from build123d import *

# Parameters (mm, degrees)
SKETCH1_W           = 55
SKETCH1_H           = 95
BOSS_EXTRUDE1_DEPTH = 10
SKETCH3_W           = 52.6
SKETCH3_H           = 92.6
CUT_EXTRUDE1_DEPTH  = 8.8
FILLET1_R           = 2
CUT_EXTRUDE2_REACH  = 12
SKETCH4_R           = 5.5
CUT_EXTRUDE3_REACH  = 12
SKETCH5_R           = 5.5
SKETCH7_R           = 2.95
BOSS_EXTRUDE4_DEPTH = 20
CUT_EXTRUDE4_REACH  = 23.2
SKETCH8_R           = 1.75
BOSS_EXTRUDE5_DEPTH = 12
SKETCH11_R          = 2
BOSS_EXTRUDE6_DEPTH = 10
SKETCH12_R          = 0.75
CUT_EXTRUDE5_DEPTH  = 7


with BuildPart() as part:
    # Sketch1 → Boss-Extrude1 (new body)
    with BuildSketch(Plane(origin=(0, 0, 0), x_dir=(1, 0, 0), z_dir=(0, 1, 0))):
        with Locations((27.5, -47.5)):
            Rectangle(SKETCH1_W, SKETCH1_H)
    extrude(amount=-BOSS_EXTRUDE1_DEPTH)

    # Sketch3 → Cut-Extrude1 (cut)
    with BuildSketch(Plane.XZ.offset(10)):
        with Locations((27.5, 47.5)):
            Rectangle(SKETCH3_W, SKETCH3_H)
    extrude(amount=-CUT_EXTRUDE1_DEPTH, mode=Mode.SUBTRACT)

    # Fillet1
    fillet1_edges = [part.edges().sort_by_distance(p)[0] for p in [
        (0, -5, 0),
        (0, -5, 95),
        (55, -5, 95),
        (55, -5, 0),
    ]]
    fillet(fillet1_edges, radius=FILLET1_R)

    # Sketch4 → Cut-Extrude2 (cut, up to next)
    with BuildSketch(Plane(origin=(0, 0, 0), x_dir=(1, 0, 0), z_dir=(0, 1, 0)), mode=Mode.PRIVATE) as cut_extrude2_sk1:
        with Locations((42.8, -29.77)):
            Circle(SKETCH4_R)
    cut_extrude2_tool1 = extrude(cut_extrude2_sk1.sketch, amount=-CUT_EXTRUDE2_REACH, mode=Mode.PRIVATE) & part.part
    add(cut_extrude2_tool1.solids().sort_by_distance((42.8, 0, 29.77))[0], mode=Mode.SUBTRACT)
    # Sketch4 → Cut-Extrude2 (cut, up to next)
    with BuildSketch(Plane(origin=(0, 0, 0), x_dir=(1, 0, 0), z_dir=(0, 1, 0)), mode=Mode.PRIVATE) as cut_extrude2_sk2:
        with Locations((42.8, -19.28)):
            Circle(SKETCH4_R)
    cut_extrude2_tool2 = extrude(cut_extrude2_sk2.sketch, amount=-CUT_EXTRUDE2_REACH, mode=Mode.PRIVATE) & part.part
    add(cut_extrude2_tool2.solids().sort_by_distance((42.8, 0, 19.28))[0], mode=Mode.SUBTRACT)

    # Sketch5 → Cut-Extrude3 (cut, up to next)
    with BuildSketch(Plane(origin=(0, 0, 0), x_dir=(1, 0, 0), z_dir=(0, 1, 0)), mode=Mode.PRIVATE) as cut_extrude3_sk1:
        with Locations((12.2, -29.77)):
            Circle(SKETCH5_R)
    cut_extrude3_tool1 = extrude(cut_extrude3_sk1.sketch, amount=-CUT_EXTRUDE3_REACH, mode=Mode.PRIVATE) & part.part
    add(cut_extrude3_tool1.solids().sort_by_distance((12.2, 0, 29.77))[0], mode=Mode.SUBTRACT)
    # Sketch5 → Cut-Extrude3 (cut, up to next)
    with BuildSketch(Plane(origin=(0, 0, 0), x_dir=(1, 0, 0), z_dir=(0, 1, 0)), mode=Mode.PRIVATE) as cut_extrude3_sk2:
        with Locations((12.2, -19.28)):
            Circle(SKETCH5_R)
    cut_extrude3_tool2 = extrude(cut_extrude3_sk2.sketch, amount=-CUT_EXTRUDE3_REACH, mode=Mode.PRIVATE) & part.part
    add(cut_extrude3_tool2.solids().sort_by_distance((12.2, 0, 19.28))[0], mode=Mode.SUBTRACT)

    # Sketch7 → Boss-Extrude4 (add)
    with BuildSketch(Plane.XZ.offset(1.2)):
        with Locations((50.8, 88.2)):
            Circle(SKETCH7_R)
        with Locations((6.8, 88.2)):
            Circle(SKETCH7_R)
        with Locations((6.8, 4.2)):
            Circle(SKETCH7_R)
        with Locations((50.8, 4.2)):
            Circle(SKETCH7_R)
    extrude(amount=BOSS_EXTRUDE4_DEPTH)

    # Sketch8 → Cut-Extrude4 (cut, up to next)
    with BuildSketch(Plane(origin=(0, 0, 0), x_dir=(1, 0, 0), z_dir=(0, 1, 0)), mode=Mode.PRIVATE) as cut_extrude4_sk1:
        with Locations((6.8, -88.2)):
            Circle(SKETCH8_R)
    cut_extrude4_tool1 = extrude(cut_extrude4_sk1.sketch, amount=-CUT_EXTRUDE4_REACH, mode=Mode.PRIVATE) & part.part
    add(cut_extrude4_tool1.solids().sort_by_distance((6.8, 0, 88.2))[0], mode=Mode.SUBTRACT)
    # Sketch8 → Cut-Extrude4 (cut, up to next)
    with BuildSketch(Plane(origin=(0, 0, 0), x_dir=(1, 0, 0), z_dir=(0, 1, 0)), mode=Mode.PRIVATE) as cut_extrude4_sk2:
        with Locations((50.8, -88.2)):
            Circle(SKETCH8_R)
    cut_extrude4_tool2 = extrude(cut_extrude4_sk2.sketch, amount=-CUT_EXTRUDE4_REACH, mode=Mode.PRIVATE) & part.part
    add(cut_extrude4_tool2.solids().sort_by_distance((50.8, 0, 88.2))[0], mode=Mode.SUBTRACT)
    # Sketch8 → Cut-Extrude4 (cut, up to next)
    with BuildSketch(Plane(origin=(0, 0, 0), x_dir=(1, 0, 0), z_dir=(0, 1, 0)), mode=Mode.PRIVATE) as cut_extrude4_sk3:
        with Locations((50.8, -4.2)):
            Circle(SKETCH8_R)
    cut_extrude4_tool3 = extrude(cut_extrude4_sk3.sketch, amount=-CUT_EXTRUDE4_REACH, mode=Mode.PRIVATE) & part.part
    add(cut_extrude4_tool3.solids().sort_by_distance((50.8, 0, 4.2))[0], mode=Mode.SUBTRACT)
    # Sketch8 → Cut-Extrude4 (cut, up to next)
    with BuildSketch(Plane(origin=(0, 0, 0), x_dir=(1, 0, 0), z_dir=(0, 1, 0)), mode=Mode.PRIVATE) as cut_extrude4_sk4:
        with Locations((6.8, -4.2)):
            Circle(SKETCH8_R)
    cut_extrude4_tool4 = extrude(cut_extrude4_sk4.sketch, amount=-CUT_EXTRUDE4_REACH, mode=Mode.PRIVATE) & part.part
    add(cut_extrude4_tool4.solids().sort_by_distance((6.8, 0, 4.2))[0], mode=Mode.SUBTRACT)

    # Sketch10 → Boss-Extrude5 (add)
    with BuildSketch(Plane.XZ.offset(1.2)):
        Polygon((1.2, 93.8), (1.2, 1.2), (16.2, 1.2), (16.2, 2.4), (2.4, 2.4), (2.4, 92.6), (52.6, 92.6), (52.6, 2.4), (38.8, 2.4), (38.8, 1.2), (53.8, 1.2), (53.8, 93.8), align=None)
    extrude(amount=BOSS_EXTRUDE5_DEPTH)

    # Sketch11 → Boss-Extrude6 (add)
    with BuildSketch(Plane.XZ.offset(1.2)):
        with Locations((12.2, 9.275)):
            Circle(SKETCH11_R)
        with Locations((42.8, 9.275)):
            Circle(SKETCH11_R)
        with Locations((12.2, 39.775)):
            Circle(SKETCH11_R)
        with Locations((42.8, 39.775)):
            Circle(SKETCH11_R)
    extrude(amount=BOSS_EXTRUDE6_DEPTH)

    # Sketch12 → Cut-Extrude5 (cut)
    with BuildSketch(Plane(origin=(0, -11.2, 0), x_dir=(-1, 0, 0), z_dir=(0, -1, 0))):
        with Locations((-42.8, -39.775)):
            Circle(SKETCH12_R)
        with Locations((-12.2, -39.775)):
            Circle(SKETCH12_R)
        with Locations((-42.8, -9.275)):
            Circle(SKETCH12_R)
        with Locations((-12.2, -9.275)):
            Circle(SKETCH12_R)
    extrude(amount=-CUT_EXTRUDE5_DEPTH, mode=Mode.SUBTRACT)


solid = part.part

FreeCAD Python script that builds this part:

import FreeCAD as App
import Part
import Sketcher

V = App.Vector


def edges_at(feature, points):
    """Names of the edges that pass closest to the given points."""
    edges = feature.Shape.Edges
    near = lambda p: min(range(len(edges)), key=lambda i: edges[i].distToShape(Part.Vertex(*p))[0])
    return sorted({f"Edge{near(p) + 1}" for p in points})

doc = App.newDocument("Part")
body = doc.addObject("PartDesign::Body", "Body")

# Sketch on XZ plane
sketch1 = body.newObject("Sketcher::SketchObject", "Sketch")
sketch1.AttachmentSupport = (doc.getObject("XZ_Plane"), [""])
sketch1.MapMode = "FlatFace"
sketch1.addGeometry(Part.LineSegment(V(0, 0, 0), V(0, 95, 0)), False)
sketch1.addGeometry(Part.LineSegment(V(0, 95, 0), V(55, 95, 0)), False)
sketch1.addGeometry(Part.LineSegment(V(55, 95, 0), V(55, 0, 0)), False)
sketch1.addGeometry(Part.LineSegment(V(55, 0, 0), V(0, 0, 0)), False)
sketch1.addConstraint(Sketcher.Constraint("Coincident", 0, 2, 1, 1))
sketch1.addConstraint(Sketcher.Constraint("Coincident", 1, 2, 2, 1))
sketch1.addConstraint(Sketcher.Constraint("Coincident", 2, 2, 3, 1))
sketch1.addConstraint(Sketcher.Constraint("Coincident", 3, 2, 0, 1))
sketch1.addConstraint(Sketcher.Constraint("Vertical", 0))
sketch1.addConstraint(Sketcher.Constraint("Horizontal", 1))
sketch1.addConstraint(Sketcher.Constraint("Vertical", 2))
sketch1.addConstraint(Sketcher.Constraint("Horizontal", 3))
sketch1.addConstraint(Sketcher.Constraint("Coincident", 3, 2, -1, 1))
sketch1.addConstraint(Sketcher.Constraint("DistanceX", 1, 1, 1, 2, 55.0))
sketch1.addConstraint(Sketcher.Constraint("DistanceY", 0, 1, 0, 2, 95.0))
pad1 = body.newObject("PartDesign::Pad", "Pad")
pad1.Profile = sketch1
pad1.Length = 10

# Sketch on XZ plane
sketch2 = body.newObject("Sketcher::SketchObject", "Sketch001")
sketch2.AttachmentSupport = (doc.getObject("XZ_Plane"), [""])
sketch2.MapMode = "FlatFace"
sketch2.AttachmentOffset = App.Placement(V(0, 0, 10), App.Rotation())
sketch2.addGeometry(Part.LineSegment(V(1, 94, 0), V(1, 1, 0)), False)
sketch2.addGeometry(Part.LineSegment(V(1, 1, 0), V(54, 1, 0)), False)
sketch2.addGeometry(Part.LineSegment(V(54, 1, 0), V(54, 94, 0)), False)
sketch2.addGeometry(Part.LineSegment(V(54, 94, 0), V(1, 94, 0)), False)
sketch2.addConstraint(Sketcher.Constraint("Coincident", 0, 2, 1, 1))
sketch2.addConstraint(Sketcher.Constraint("Coincident", 1, 2, 2, 1))
sketch2.addConstraint(Sketcher.Constraint("Coincident", 2, 2, 3, 1))
sketch2.addConstraint(Sketcher.Constraint("Coincident", 3, 2, 0, 1))
sketch2.addConstraint(Sketcher.Constraint("Vertical", 0))
sketch2.addConstraint(Sketcher.Constraint("Horizontal", 1))
sketch2.addConstraint(Sketcher.Constraint("Vertical", 2))
sketch2.addConstraint(Sketcher.Constraint("Horizontal", 3))
sketch2.addConstraint(Sketcher.Constraint("DistanceX", 1, 1, 1, 2, 52.6))
sketch2.addConstraint(Sketcher.Constraint("DistanceY", 0, 2, 0, 1, 92.6))
sketch2.addConstraint(Sketcher.Constraint("DistanceX", -1, 1, 0, 2, 1.2))
sketch2.addConstraint(Sketcher.Constraint("DistanceY", -1, 1, 0, 2, 1.2))
pocket1 = body.newObject("PartDesign::Pocket", "Pocket")
pocket1.Profile = sketch2
pocket1.Length = 8.8
doc.recompute()

fillet = body.newObject("PartDesign::Fillet", "Fillet")
fillet.Base = (pocket1, edges_at(pocket1, [
    (0, -5, 0),
    (0, -5, 95),
    (55, -5, 95),
    (55, -5, 0),
]))
fillet.Radius = 2

# Sketch on XZ plane
sketch3 = body.newObject("Sketcher::SketchObject", "Sketch002")
sketch3.AttachmentSupport = (doc.getObject("XZ_Plane"), [""])
sketch3.MapMode = "FlatFace"
sketch3.addGeometry(Part.Circle(V(43, 30, 0), V(0, 0, 1), 6), False)
sketch3.addConstraint(Sketcher.Constraint("Diameter", 0, 11.0))
sketch3.addConstraint(Sketcher.Constraint("DistanceX", -1, 1, 0, 3, 42.8))
sketch3.addConstraint(Sketcher.Constraint("DistanceY", -1, 1, 0, 3, 29.77))
pocket2 = body.newObject("PartDesign::Pocket", "Pocket001")
pocket2.Profile = sketch3
pocket2.Type = "UpToFirst"
pocket2.Reversed = True

# Sketch on XZ plane
sketch4 = body.newObject("Sketcher::SketchObject", "Sketch003")
sketch4.AttachmentSupport = (doc.getObject("XZ_Plane"), [""])
sketch4.MapMode = "FlatFace"
sketch4.addGeometry(Part.Circle(V(43, 19, 0), V(0, 0, 1), 6), False)
sketch4.addConstraint(Sketcher.Constraint("Diameter", 0, 11.0))
sketch4.addConstraint(Sketcher.Constraint("DistanceX", -1, 1, 0, 3, 42.8))
sketch4.addConstraint(Sketcher.Constraint("DistanceY", -1, 1, 0, 3, 19.28))
pocket3 = body.newObject("PartDesign::Pocket", "Pocket002")
pocket3.Profile = sketch4
pocket3.Type = "UpToFirst"
pocket3.Reversed = True

# Sketch on XZ plane
sketch5 = body.newObject("Sketcher::SketchObject", "Sketch004")
sketch5.AttachmentSupport = (doc.getObject("XZ_Plane"), [""])
sketch5.MapMode = "FlatFace"
sketch5.addGeometry(Part.Circle(V(12, 30, 0), V(0, 0, 1), 6), False)
sketch5.addConstraint(Sketcher.Constraint("Diameter", 0, 11.0))
sketch5.addConstraint(Sketcher.Constraint("DistanceX", -1, 1, 0, 3, 12.2))
sketch5.addConstraint(Sketcher.Constraint("DistanceY", -1, 1, 0, 3, 29.77))
pocket4 = body.newObject("PartDesign::Pocket", "Pocket003")
pocket4.Profile = sketch5
pocket4.Type = "UpToFirst"
pocket4.Reversed = True

# Sketch on XZ plane
sketch6 = body.newObject("Sketcher::SketchObject", "Sketch005")
sketch6.AttachmentSupport = (doc.getObject("XZ_Plane"), [""])
sketch6.MapMode = "FlatFace"
sketch6.addGeometry(Part.Circle(V(12, 19, 0), V(0, 0, 1), 6), False)
sketch6.addConstraint(Sketcher.Constraint("Diameter", 0, 11.0))
sketch6.addConstraint(Sketcher.Constraint("DistanceX", -1, 1, 0, 3, 12.2))
sketch6.addConstraint(Sketcher.Constraint("DistanceY", -1, 1, 0, 3, 19.28))
pocket5 = body.newObject("PartDesign::Pocket", "Pocket004")
pocket5.Profile = sketch6
pocket5.Type = "UpToFirst"
pocket5.Reversed = True

# Sketch on XZ plane
sketch7 = body.newObject("Sketcher::SketchObject", "Sketch006")
sketch7.AttachmentSupport = (doc.getObject("XZ_Plane"), [""])
sketch7.MapMode = "FlatFace"
sketch7.AttachmentOffset = App.Placement(V(0, 0, 1.2), App.Rotation())
sketch7.addGeometry(Part.Circle(V(50.8, 88.2, 0), V(0, 0, 1), 3), False)
sketch7.addGeometry(Part.Circle(V(6.8, 88.2, 0), V(0, 0, 1), 3), False)
sketch7.addGeometry(Part.Circle(V(6.8, 4.2, 0), V(0, 0, 1), 3), False)
sketch7.addGeometry(Part.Circle(V(50.8, 4.2, 0), V(0, 0, 1), 3), False)
sketch7.addConstraint(Sketcher.Constraint("Equal", 0, 1))
sketch7.addConstraint(Sketcher.Constraint("Equal", 1, 2))
sketch7.addConstraint(Sketcher.Constraint("Equal", 2, 3))
sketch7.addConstraint(Sketcher.Constraint("Horizontal", 0, 3, 1, 3))
sketch7.addConstraint(Sketcher.Constraint("Horizontal", 2, 3, 3, 3))
sketch7.addConstraint(Sketcher.Constraint("Vertical", 1, 3, 2, 3))
sketch7.addConstraint(Sketcher.Constraint("Vertical", 0, 3, 3, 3))
sketch7.addConstraint(Sketcher.Constraint("Diameter", 0, 5.9))
sketch7.addConstraint(Sketcher.Constraint("DistanceX", 1, 3, 0, 3, 44.0))
sketch7.addConstraint(Sketcher.Constraint("DistanceY", 2, 3, 1, 3, 84.0))
sketch7.addConstraint(Sketcher.Constraint("DistanceX", -1, 1, 0, 3, 50.8))
sketch7.addConstraint(Sketcher.Constraint("DistanceY", -1, 1, 0, 3, 88.2))
pad2 = body.newObject("PartDesign::Pad", "Pad001")
pad2.Profile = sketch7
pad2.Length = 20

# Sketch on XZ plane
sketch8 = body.newObject("Sketcher::SketchObject", "Sketch007")
sketch8.AttachmentSupport = (doc.getObject("XZ_Plane"), [""])
sketch8.MapMode = "FlatFace"
sketch8.addGeometry(Part.Circle(V(6.8, 88.2, 0), V(0, 0, 1), 1.8), False)
sketch8.addConstraint(Sketcher.Constraint("Diameter", 0, 3.5))
sketch8.addConstraint(Sketcher.Constraint("DistanceX", -1, 1, 0, 3, 6.8))
sketch8.addConstraint(Sketcher.Constraint("DistanceY", -1, 1, 0, 3, 88.2))
pocket6 = body.newObject("PartDesign::Pocket", "Pocket005")
pocket6.Profile = sketch8
pocket6.Type = "UpToFirst"
pocket6.Reversed = True

# Sketch on XZ plane
sketch9 = body.newObject("Sketcher::SketchObject", "Sketch008")
sketch9.AttachmentSupport = (doc.getObject("XZ_Plane"), [""])
sketch9.MapMode = "FlatFace"
sketch9.addGeometry(Part.Circle(V(50.8, 88.2, 0), V(0, 0, 1), 1.8), False)
sketch9.addConstraint(Sketcher.Constraint("Diameter", 0, 3.5))
sketch9.addConstraint(Sketcher.Constraint("DistanceX", -1, 1, 0, 3, 50.8))
sketch9.addConstraint(Sketcher.Constraint("DistanceY", -1, 1, 0, 3, 88.2))
pocket7 = body.newObject("PartDesign::Pocket", "Pocket006")
pocket7.Profile = sketch9
pocket7.Type = "UpToFirst"
pocket7.Reversed = True

# Sketch on XZ plane
sketch10 = body.newObject("Sketcher::SketchObject", "Sketch009")
sketch10.AttachmentSupport = (doc.getObject("XZ_Plane"), [""])
sketch10.MapMode = "FlatFace"
sketch10.addGeometry(Part.Circle(V(50.8, 4.2, 0), V(0, 0, 1), 1.8), False)
sketch10.addConstraint(Sketcher.Constraint("Diameter", 0, 3.5))
sketch10.addConstraint(Sketcher.Constraint("DistanceX", -1, 1, 0, 3, 50.8))
sketch10.addConstraint(Sketcher.Constraint("DistanceY", -1, 1, 0, 3, 4.2))
pocket8 = body.newObject("PartDesign::Pocket", "Pocket007")
pocket8.Profile = sketch10
pocket8.Type = "UpToFirst"
pocket8.Reversed = True

# Sketch on XZ plane
sketch11 = body.newObject("Sketcher::SketchObject", "Sketch010")
sketch11.AttachmentSupport = (doc.getObject("XZ_Plane"), [""])
sketch11.MapMode = "FlatFace"
sketch11.addGeometry(Part.Circle(V(6.8, 4.2, 0), V(0, 0, 1), 1.8), False)
sketch11.addConstraint(Sketcher.Constraint("Diameter", 0, 3.5))
sketch11.addConstraint(Sketcher.Constraint("DistanceX", -1, 1, 0, 3, 6.8))
sketch11.addConstraint(Sketcher.Constraint("DistanceY", -1, 1, 0, 3, 4.2))
pocket9 = body.newObject("PartDesign::Pocket", "Pocket008")
pocket9.Profile = sketch11
pocket9.Type = "UpToFirst"
pocket9.Reversed = True

# Sketch on XZ plane
sketch12 = body.newObject("Sketcher::SketchObject", "Sketch011")
sketch12.AttachmentSupport = (doc.getObject("XZ_Plane"), [""])
sketch12.MapMode = "FlatFace"
sketch12.AttachmentOffset = App.Placement(V(0, 0, 1.2), App.Rotation())
sketch12.addGeometry(Part.LineSegment(V(1.2, 93.8, 0), V(1.2, 1.2, 0)), False)
sketch12.addGeometry(Part.LineSegment(V(1.2, 1.2, 0), V(16.2, 1.2, 0)), False)
sketch12.addGeometry(Part.LineSegment(V(16.2, 1.2, 0), V(16.2, 2.4, 0)), False)
sketch12.addGeometry(Part.LineSegment(V(16.2, 2.4, 0), V(2.4, 2.4, 0)), False)
sketch12.addGeometry(Part.LineSegment(V(2.4, 2.4, 0), V(2.4, 92.6, 0)), False)
sketch12.addGeometry(Part.LineSegment(V(2.4, 92.6, 0), V(52.6, 92.6, 0)), False)
sketch12.addGeometry(Part.LineSegment(V(52.6, 92.6, 0), V(52.6, 2.4, 0)), False)
sketch12.addGeometry(Part.LineSegment(V(52.6, 2.4, 0), V(38.8, 2.4, 0)), False)
sketch12.addGeometry(Part.LineSegment(V(38.8, 2.4, 0), V(38.8, 1.2, 0)), False)
sketch12.addGeometry(Part.LineSegment(V(38.8, 1.2, 0), V(53.8, 1.2, 0)), False)
sketch12.addGeometry(Part.LineSegment(V(53.8, 1.2, 0), V(53.8, 93.8, 0)), False)
sketch12.addGeometry(Part.LineSegment(V(53.8, 93.8, 0), V(1.2, 93.8, 0)), False)
sketch12.addConstraint(Sketcher.Constraint("Coincident", 0, 2, 1, 1))
sketch12.addConstraint(Sketcher.Constraint("Coincident", 1, 2, 2, 1))
sketch12.addConstraint(Sketcher.Constraint("Coincident", 2, 2, 3, 1))
sketch12.addConstraint(Sketcher.Constraint("Coincident", 3, 2, 4, 1))
sketch12.addConstraint(Sketcher.Constraint("Coincident", 4, 2, 5, 1))
sketch12.addConstraint(Sketcher.Constraint("Coincident", 5, 2, 6, 1))
sketch12.addConstraint(Sketcher.Constraint("Coincident", 6, 2, 7, 1))
sketch12.addConstraint(Sketcher.Constraint("Coincident", 7, 2, 8, 1))
sketch12.addConstraint(Sketcher.Constraint("Coincident", 8, 2, 9, 1))
sketch12.addConstraint(Sketcher.Constraint("Coincident", 9, 2, 10, 1))
sketch12.addConstraint(Sketcher.Constraint("Coincident", 10, 2, 11, 1))
sketch12.addConstraint(Sketcher.Constraint("Coincident", 11, 2, 0, 1))
sketch12.addConstraint(Sketcher.Constraint("Vertical", 0))
sketch12.addConstraint(Sketcher.Constraint("Horizontal", 1))
sketch12.addConstraint(Sketcher.Constraint("Vertical", 2))
sketch12.addConstraint(Sketcher.Constraint("Horizontal", 3))
sketch12.addConstraint(Sketcher.Constraint("Vertical", 4))
sketch12.addConstraint(Sketcher.Constraint("Horizontal", 5))
sketch12.addConstraint(Sketcher.Constraint("Vertical", 6))
sketch12.addConstraint(Sketcher.Constraint("Horizontal", 7))
sketch12.addConstraint(Sketcher.Constraint("Vertical", 8))
sketch12.addConstraint(Sketcher.Constraint("Horizontal", 9))
sketch12.addConstraint(Sketcher.Constraint("Vertical", 10))
sketch12.addConstraint(Sketcher.Constraint("Horizontal", 11))
sketch12.addConstraint(Sketcher.Constraint("Horizontal", 3, 2, 6, 2))
sketch12.addConstraint(Sketcher.Constraint("Horizontal", 1, 2, 8, 2))
sketch12.addConstraint(Sketcher.Constraint("Equal", 3, 7))
sketch12.addConstraint(Sketcher.Constraint("Equal", 1, 9))
sketch12.addConstraint(Sketcher.Constraint("DistanceX", 1, 1, 1, 2, 15.0))
sketch12.addConstraint(Sketcher.Constraint("DistanceX", 3, 2, 3, 1, 13.8))
sketch12.addConstraint(Sketcher.Constraint("DistanceX", 5, 1, 5, 2, 50.2))
sketch12.addConstraint(Sketcher.Constraint("DistanceY", 0, 2, 0, 1, 92.6))
sketch12.addConstraint(Sketcher.Constraint("DistanceY", 2, 1, 2, 2, 1.2))
sketch12.addConstraint(Sketcher.Constraint("DistanceY", 4, 1, 4, 2, 90.2))
sketch12.addConstraint(Sketcher.Constraint("DistanceX", -1, 1, 0, 2, 1.2))
sketch12.addConstraint(Sketcher.Constraint("DistanceY", -1, 1, 0, 2, 1.2))
pad3 = body.newObject("PartDesign::Pad", "Pad002")
pad3.Profile = sketch12
pad3.Length = 12

# Sketch on XZ plane
sketch13 = body.newObject("Sketcher::SketchObject", "Sketch012")
sketch13.AttachmentSupport = (doc.getObject("XZ_Plane"), [""])
sketch13.MapMode = "FlatFace"
sketch13.AttachmentOffset = App.Placement(V(0, 0, 1.2), App.Rotation())
sketch13.addGeometry(Part.Circle(V(12.2, 9.3, 0), V(0, 0, 1), 2), False)
sketch13.addGeometry(Part.Circle(V(42.8, 9.3, 0), V(0, 0, 1), 2), False)
sketch13.addGeometry(Part.Circle(V(12.2, 39.8, 0), V(0, 0, 1), 2), False)
sketch13.addGeometry(Part.Circle(V(42.8, 39.8, 0), V(0, 0, 1), 2), False)
sketch13.addConstraint(Sketcher.Constraint("Equal", 0, 1))
sketch13.addConstraint(Sketcher.Constraint("Equal", 1, 2))
sketch13.addConstraint(Sketcher.Constraint("Equal", 2, 3))
sketch13.addConstraint(Sketcher.Constraint("Horizontal", 0, 3, 1, 3))
sketch13.addConstraint(Sketcher.Constraint("Horizontal", 2, 3, 3, 3))
sketch13.addConstraint(Sketcher.Constraint("Vertical", 0, 3, 2, 3))
sketch13.addConstraint(Sketcher.Constraint("Vertical", 1, 3, 3, 3))
sketch13.addConstraint(Sketcher.Constraint("Diameter", 0, 4.0))
sketch13.addConstraint(Sketcher.Constraint("DistanceX", -1, 1, 0, 3, 12.2))
sketch13.addConstraint(Sketcher.Constraint("DistanceX", -1, 1, 1, 3, 42.8))
sketch13.addConstraint(Sketcher.Constraint("DistanceY", 0, 3, 2, 3, 30.5))
sketch13.addConstraint(Sketcher.Constraint("DistanceY", -1, 1, 0, 3, 9.275))
pad4 = body.newObject("PartDesign::Pad", "Pad003")
pad4.Profile = sketch13
pad4.Length = 10

# Sketch on XZ plane
sketch14 = body.newObject("Sketcher::SketchObject", "Sketch013")
sketch14.AttachmentSupport = (doc.getObject("XZ_Plane"), [""])
sketch14.MapMode = "FlatFace"
sketch14.AttachmentOffset = App.Placement(V(0, 0, 11.2), App.Rotation())
sketch14.addGeometry(Part.Circle(V(42.8, 39.8, 0), V(0, 0, 1), 0.8), False)
sketch14.addGeometry(Part.Circle(V(12.2, 39.8, 0), V(0, 0, 1), 0.8), False)
sketch14.addGeometry(Part.Circle(V(42.8, 9.3, 0), V(0, 0, 1), 0.8), False)
sketch14.addGeometry(Part.Circle(V(12.2, 9.3, 0), V(0, 0, 1), 0.8), False)
sketch14.addConstraint(Sketcher.Constraint("Equal", 0, 1))
sketch14.addConstraint(Sketcher.Constraint("Equal", 1, 2))
sketch14.addConstraint(Sketcher.Constraint("Equal", 2, 3))
sketch14.addConstraint(Sketcher.Constraint("Horizontal", 0, 3, 1, 3))
sketch14.addConstraint(Sketcher.Constraint("Horizontal", 2, 3, 3, 3))
sketch14.addConstraint(Sketcher.Constraint("Vertical", 0, 3, 2, 3))
sketch14.addConstraint(Sketcher.Constraint("Vertical", 1, 3, 3, 3))
sketch14.addConstraint(Sketcher.Constraint("Diameter", 0, 1.5))
sketch14.addConstraint(Sketcher.Constraint("DistanceX", -1, 1, 0, 3, 42.8))
sketch14.addConstraint(Sketcher.Constraint("DistanceX", -1, 1, 1, 3, 12.2))
sketch14.addConstraint(Sketcher.Constraint("DistanceY", 2, 3, 0, 3, 30.5))
sketch14.addConstraint(Sketcher.Constraint("DistanceY", -1, 1, 0, 3, 39.775))
pocket10 = body.newObject("PartDesign::Pocket", "Pocket009")
pocket10.Profile = sketch14
pocket10.Length = 7

doc.recompute()
